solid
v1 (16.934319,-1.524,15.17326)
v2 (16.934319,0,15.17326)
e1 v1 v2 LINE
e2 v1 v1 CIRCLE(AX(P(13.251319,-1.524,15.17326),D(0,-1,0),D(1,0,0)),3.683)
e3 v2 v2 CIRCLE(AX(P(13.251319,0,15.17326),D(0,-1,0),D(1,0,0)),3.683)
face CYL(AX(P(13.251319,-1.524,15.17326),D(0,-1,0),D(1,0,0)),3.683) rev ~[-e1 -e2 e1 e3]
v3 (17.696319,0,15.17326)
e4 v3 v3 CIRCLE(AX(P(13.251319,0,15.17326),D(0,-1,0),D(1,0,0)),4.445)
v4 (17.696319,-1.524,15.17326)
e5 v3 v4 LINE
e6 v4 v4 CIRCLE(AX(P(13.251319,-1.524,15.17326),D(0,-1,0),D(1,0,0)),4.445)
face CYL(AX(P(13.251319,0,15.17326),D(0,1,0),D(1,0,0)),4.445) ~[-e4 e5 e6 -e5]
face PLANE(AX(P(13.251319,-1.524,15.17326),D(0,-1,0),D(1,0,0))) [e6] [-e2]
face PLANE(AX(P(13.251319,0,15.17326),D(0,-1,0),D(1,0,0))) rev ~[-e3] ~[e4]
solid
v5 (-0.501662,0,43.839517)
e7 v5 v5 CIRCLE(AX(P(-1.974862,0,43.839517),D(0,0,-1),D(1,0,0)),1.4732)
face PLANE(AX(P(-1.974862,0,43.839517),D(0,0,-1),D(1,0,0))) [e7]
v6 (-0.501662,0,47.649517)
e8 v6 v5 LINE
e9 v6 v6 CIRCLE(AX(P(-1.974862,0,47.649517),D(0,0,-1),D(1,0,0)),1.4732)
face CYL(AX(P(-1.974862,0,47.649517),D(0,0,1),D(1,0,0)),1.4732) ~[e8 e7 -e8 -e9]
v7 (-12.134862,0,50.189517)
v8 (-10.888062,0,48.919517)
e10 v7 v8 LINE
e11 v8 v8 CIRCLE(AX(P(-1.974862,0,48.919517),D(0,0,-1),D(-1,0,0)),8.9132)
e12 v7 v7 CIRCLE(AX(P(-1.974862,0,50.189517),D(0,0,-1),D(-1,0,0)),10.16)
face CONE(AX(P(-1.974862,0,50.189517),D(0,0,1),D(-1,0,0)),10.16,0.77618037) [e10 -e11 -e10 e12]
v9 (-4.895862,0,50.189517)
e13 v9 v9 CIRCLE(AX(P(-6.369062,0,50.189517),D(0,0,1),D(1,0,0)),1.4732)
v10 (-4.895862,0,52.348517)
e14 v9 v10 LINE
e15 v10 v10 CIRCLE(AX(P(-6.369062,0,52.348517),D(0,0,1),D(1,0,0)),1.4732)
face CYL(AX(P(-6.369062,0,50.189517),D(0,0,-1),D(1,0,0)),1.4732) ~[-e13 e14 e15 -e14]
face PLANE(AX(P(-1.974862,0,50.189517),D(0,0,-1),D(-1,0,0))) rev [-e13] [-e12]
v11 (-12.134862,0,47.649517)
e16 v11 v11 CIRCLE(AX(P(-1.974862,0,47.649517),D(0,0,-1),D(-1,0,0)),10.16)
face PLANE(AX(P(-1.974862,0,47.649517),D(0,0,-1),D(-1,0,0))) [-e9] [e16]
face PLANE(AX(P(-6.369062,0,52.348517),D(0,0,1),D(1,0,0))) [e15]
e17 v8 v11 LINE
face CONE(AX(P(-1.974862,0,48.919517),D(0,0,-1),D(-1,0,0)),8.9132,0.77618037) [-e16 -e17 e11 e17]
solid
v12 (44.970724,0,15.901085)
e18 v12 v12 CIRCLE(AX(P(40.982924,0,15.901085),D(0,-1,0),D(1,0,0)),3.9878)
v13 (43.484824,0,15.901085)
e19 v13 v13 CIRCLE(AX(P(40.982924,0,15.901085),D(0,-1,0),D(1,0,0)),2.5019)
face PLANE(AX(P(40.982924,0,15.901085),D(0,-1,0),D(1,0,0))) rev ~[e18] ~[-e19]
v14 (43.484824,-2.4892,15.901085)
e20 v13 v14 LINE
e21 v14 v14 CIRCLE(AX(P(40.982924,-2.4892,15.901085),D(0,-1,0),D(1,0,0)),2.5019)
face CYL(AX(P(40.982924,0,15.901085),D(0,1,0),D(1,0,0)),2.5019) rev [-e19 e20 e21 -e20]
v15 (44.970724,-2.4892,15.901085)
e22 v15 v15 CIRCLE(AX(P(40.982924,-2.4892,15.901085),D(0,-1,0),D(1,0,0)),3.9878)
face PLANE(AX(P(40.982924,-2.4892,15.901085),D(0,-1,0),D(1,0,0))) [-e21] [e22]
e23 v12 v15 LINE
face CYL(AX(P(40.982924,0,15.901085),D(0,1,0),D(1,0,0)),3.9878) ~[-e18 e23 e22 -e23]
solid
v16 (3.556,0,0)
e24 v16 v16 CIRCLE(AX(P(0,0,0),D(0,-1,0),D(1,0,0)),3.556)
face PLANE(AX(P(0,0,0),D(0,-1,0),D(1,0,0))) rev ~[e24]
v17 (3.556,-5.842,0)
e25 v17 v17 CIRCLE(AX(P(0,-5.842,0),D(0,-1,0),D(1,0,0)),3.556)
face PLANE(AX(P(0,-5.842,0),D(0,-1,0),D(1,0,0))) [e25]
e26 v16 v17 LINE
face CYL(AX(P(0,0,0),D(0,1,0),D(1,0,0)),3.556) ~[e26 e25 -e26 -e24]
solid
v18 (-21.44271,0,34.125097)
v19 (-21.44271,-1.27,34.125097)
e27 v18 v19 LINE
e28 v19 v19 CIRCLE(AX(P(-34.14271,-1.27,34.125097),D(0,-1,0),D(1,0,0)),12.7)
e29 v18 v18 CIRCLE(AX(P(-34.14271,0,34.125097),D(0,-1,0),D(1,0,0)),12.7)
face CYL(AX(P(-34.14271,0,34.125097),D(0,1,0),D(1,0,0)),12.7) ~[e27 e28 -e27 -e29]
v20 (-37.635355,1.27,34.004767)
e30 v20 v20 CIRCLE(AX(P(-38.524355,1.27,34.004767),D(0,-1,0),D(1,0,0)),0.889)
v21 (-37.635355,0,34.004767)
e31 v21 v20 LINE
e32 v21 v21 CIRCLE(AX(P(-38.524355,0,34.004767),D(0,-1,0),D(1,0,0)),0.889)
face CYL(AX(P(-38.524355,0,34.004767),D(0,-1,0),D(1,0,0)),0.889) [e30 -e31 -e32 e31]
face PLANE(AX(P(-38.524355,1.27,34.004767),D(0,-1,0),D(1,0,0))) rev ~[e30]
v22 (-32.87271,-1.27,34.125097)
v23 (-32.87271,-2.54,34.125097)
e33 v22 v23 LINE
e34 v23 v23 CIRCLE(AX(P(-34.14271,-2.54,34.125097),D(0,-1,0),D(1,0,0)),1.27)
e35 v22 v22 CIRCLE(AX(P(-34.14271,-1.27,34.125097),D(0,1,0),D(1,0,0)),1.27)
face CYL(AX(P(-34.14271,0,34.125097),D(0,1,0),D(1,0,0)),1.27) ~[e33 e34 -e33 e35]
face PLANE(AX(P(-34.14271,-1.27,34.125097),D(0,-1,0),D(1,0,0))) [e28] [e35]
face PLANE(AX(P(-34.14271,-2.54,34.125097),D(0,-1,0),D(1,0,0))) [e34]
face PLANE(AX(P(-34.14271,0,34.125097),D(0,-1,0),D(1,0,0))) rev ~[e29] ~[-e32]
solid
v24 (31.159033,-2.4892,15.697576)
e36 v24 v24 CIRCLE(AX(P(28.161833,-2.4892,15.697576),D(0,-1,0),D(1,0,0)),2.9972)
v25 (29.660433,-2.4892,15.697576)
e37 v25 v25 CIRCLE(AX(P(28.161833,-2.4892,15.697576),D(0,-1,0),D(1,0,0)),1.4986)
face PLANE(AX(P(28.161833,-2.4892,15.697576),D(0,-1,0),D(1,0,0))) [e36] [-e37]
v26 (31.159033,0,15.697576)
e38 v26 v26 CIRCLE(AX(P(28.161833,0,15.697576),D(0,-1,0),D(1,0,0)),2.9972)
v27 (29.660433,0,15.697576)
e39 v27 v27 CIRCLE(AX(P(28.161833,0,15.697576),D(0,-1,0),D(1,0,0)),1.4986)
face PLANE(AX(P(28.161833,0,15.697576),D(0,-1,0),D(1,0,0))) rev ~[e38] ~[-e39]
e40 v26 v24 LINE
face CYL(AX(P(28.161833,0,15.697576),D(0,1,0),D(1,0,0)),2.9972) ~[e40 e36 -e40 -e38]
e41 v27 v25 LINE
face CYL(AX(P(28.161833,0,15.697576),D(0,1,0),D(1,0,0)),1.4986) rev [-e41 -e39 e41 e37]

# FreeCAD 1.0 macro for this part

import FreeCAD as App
import Part
import Sketcher

V = App.Vector
Q = App.Units.Quantity

doc = App.newDocument("Part")
params = doc.addObject("Spreadsheet::Sheet", "Params")
for row, (alias, value) in enumerate([
    ("sketch1_diameter", "0.28 in"),
    ("pad1_length", "0.23 in"),
    ("sketch2_diameter", "0.35 in"),
    ("pad2_length", "0.06 in"),
    ("sketch3_diameter", "0.29 in"),
    ("pocket1_length", "1 in"),
    ("sketch4_diameter", "1 in"),
    ("pad3_length", "0.05 in"),
    ("sketch5_diameter", "0.07 in"),
    ("pad4_length", "0.05 in"),
    ("sketch6_diameter", "0.1 in"),
    ("pad5_length", "0.1 in"),
    ("sketch7_width", "0.4 in"),
    ("sketch7_height", "0.1 in"),
    ("revolution_angle", "360 deg"),
    ("sketch8_diameter", "0.116 in"),
    ("pad6_length", "0.085 in"),
    ("sketch9_diameter", "0.116 in"),
    ("pad7_length", "0.15 in"),
    ("sketch10_diameter", "0.236 in"),
    ("sketch10_diameter2", "0.118 in"),
    ("sketch10_diameter3", "0.314 in"),
    ("sketch10_diameter4", "0.197 in"),
    ("pad8_length", "0.098 in"),
], start=1):
    params.set(f"A{row}", alias)
    params.set(f"B{row}", "=" + value)
    params.setAlias(f"B{row}", alias)

body = doc.addObject("PartDesign::Body", "Body")

# Sketch on XZ plane
sketch1 = body.newObject("Sketcher::SketchObject", "Sketch")
sketch1.AttachmentSupport = (doc.getObject("XZ_Plane"), [""])
sketch1.MapMode = "FlatFace"
sketch1.addGeometry(Part.Circle(V(0, 0, 0), V(0, 0, 1), 3.6), False)
sketch1.addConstraint(Sketcher.Constraint("Coincident", 0, 3, -1, 1))
sketch1.addConstraint(Sketcher.Constraint("Diameter", 0, Q("0.28 in")))
sketch1.setExpression("Constraints[1]", "Params.sketch1_diameter")
pad1 = body.newObject("PartDesign::Pad", "Pad")
pad1.Profile = sketch1
pad1.setExpression("Length", "Params.pad1_length")
body2 = doc.addObject("PartDesign::Body", "Body001")

# Sketch on XZ plane
sketch2 = body2.newObject("Sketcher::SketchObject", "Sketch001")
sketch2.AttachmentSupport = (doc.getObject("XZ_Plane001"), [""])
sketch2.MapMode = "FlatFace"
sketch2.addGeometry(Part.Circle(V(13.3, 15.2, 0), V(0, 0, 1), 4.4), False)
sketch2.addConstraint(Sketcher.Constraint("Diameter", 0, Q("0.35 in")))
sketch2.addConstraint(Sketcher.Constraint("DistanceX", -1, 1, 0, 3, 13.251319))
sketch2.addConstraint(Sketcher.Constraint("DistanceY", -1, 1, 0, 3, 15.17326))
sketch2.setExpression("Constraints[0]", "Params.sketch2_diameter")
pad2 = body2.newObject("PartDesign::Pad", "Pad001")
pad2.Profile = sketch2
pad2.setExpression("Length", "Params.pad2_length")

# Sketch on XZ plane
sketch3 = body2.newObject("Sketcher::SketchObject", "Sketch002")
sketch3.AttachmentSupport = (doc.getObject("XZ_Plane001"), [""])
sketch3.MapMode = "FlatFace"
sketch3.AttachmentOffset = App.Placement(V(0, 0, 0.06 * 25.4), App.Rotation())
sketch3.addGeometry(Part.Circle(V(13.3, 15.2, 0), V(0, 0, 1), 3.7), False)
sketch3.addConstraint(Sketcher.Constraint("Diameter", 0, Q("0.29 in")))
sketch3.addConstraint(Sketcher.Constraint("DistanceX", -1, 1, 0, 3, 13.251319))
sketch3.addConstraint(Sketcher.Constraint("DistanceY", -1, 1, 0, 3, 15.17326))
sketch3.setExpression("Constraints[0]", "Params.sketch3_diameter")
pocket1 = body2.newObject("PartDesign::Pocket", "Pocket")
pocket1.Profile = sketch3
pocket1.setExpression("Length", "Params.pocket1_length")
body3 = doc.addObject("PartDesign::Body", "Body002")

# Sketch on XZ plane
sketch4 = body3.newObject("Sketcher::SketchObject", "Sketch003")
sketch4.AttachmentSupport = (doc.getObject("XZ_Plane002"), [""])
sketch4.MapMode = "FlatFace"
sketch4.addGeometry(Part.Circle(V(-34, 34, 0), V(0, 0, 1), 13), False)
sketch4.addConstraint(Sketcher.Constraint("Diameter", 0, Q("1 in")))
sketch4.addConstraint(Sketcher.Constraint("DistanceX", 0, 3, -1, 1, 34.14271))
sketch4.addConstraint(Sketcher.Constraint("DistanceY", -1, 1, 0, 3, 34.125097))
sketch4.setExpression("Constraints[0]", "Params.sketch4_diameter")
pad3 = body3.newObject("PartDesign::Pad", "Pad002")
pad3.Profile = sketch4
pad3.setExpression("Length", "Params.pad3_length")

# Sketch on XZ plane
sketch5 = body3.newObject("Sketcher::SketchObject", "Sketch004")
sketch5.AttachmentSupport = (doc.getObject("XZ_Plane002"), [""])
sketch5.MapMode = "FlatFace"
sketch5.addGeometry(Part.Circle(V(-38.5, 34, 0), V(0, 0, 1), 0.9), False)
sketch5.addConstraint(Sketcher.Constraint("Diameter", 0, Q("0.07 in")))
sketch5.addConstraint(Sketcher.Constraint("DistanceX", 0, 3, -1, 1, 38.524355))
sketch5.addConstraint(Sketcher.Constraint("DistanceY", -1, 1, 0, 3, 34.004767))
sketch5.setExpression("Constraints[0]", "Params.sketch5_diameter")
pad4 = body3.newObject("PartDesign::Pad", "Pad003")
pad4.Profile = sketch5
pad4.setExpression("Length", "Params.pad4_length")
pad4.Reversed = True

# Sketch on XZ plane
sketch6 = body3.newObject("Sketcher::SketchObject", "Sketch005")
sketch6.AttachmentSupport = (doc.getObject("XZ_Plane002"), [""])
sketch6.MapMode = "FlatFace"
sketch6.addGeometry(Part.Circle(V(-34.1, 34.1, 0), V(0, 0, 1), 1.3), False)
sketch6.addConstraint(Sketcher.Constraint("Diameter", 0, Q("0.1 in")))
sketch6.addConstraint(Sketcher.Constraint("DistanceX", 0, 3, -1, 1, 34.14271))
sketch6.addConstraint(Sketcher.Constraint("DistanceY", -1, 1, 0, 3, 34.125097))
sketch6.setExpression("Constraints[0]", "Params.sketch6_diameter")
pad5 = body3.newObject("PartDesign::Pad", "Pad004")
pad5.Profile = sketch6
pad5.setExpression("Length", "Params.pad5_length")
body4 = doc.addObject("PartDesign::Body", "Body003")

# Sketch on XZ plane
sketch7 = body4.newObject("Sketcher::SketchObject", "Sketch006")
sketch7.AttachmentSupport = (doc.getObject("XZ_Plane003"), [""])
sketch7.MapMode = "FlatFace"
sketch7.addGeometry(Part.LineSegment(V(-2, 50.2, 0), V(-12.1, 50.2, 0)), False)
sketch7.addGeometry(Part.LineSegment(V(-12.1, 50.2, 0), V(-10.9, 48.9, 0)), False)
sketch7.addGeometry(Part.LineSegment(V(-10.9, 48.9, 0), V(-12.1, 47.6, 0)), False)
sketch7.addGeometry(Part.LineSegment(V(-12.1, 47.6, 0), V(-2, 47.6, 0)), False)
sketch7.addGeometry(Part.LineSegment(V(-2, 47.6, 0), V(-2, 50.2, 0)), False)
sketch7.addGeometry(Part.LineSegment(V(-2, 50.2, 0), V(-2, 47.6, 0)), True)  # axis
sketch7.addConstraint(Sketcher.Constraint("Coincident", 0, 2, 1, 1))
sketch7.addConstraint(Sketcher.Constraint("Coincident", 1, 2, 2, 1))
sketch7.addConstraint(Sketcher.Constraint("Coincident", 2, 2, 3, 1))
sketch7.addConstraint(Sketcher.Constraint("Coincident", 3, 2, 4, 1))
sketch7.addConstraint(Sketcher.Constraint("Coincident", 4, 2, 0, 1))
sketch7.addConstraint(Sketcher.Constraint("Horizontal", 0))
sketch7.addConstraint(Sketcher.Constraint("Horizontal", 3))
sketch7.addConstraint(Sketcher.Constraint("Vertical", 4))
sketch7.addConstraint(Sketcher.Constraint("Vertical", 5))
sketch7.addConstraint(Sketcher.Constraint("Coincident", 5, 1, 4, 2))
sketch7.addConstraint(Sketcher.Constraint("Horizontal", 2, 2, 5, 2))
sketch7.addConstraint(Sketcher.Constraint("Vertical", 0, 2, 2, 2))
sketch7.addConstraint(Sketcher.Constraint("Equal", 1, 2))
sketch7.addConstraint(Sketcher.Constraint("DistanceX", 0, 2, 0, 1, Q("0.4 in")))
sketch7.addConstraint(Sketcher.Constraint("DistanceY", 4, 1, 4, 2, Q("0.1 in")))
sketch7.addConstraint(Sketcher.Constraint("DistanceX", 0, 2, 1, 2, 1.2468))
sketch7.addConstraint(Sketcher.Constraint("DistanceX", 3, 2, -1, 1, 1.974862))
sketch7.addConstraint(Sketcher.Constraint("DistanceY", -1, 1, 0, 2, 50.189517))
sketch7.setExpression("Constraints[13]", "Params.sketch7_width")
sketch7.setExpression("Constraints[14]", "Params.sketch7_height")
revolution = body4.newObject("PartDesign::Revolution", "Revolution")
revolution.Profile = sketch7
revolution.ReferenceAxis = (sketch7, ["Axis0"])
revolution.setExpression("Angle", "Params.revolution_angle")

# Sketch on XY plane
sketch8 = body4.newObject("Sketcher::SketchObject", "Sketch007")
sketch8.AttachmentSupport = (doc.getObject("XY_Plane003"), [""])
sketch8.MapMode = "FlatFace"
sketch8.AttachmentOffset = App.Placement(V(0, 0, 50.189517), App.Rotation())
sketch8.addGeometry(Part.Circle(V(-6.4, 0, 0), V(0, 0, 1), 1.5), False)
sketch8.addConstraint(Sketcher.Constraint("PointOnObject", 0, 3, -1))
sketch8.addConstraint(Sketcher.Constraint("Diameter", 0, Q("0.116 in")))
sketch8.addConstraint(Sketcher.Constraint("DistanceX", 0, 3, -1, 1, 6.369062))
sketch8.setExpression("Constraints[1]", "Params.sketch8_diameter")
pad6 = body4.newObject("PartDesign::Pad", "Pad005")
pad6.Profile = sketch8
pad6.setExpression("Length", "Params.pad6_length")

# Sketch on XY plane
sketch9 = body4.newObject("Sketcher::SketchObject", "Sketch008")
sketch9.AttachmentSupport = (doc.getObject("XY_Plane003"), [""])
sketch9.MapMode = "FlatFace"
sketch9.AttachmentOffset = App.Placement(V(0, 0, 47.649517), App.Rotation())
sketch9.addGeometry(Part.Circle(V(-2, 0, 0), V(0, 0, 1), 1.5), False)
sketch9.addConstraint(Sketcher.Constraint("PointOnObject", 0, 3, -1))
sketch9.addConstraint(Sketcher.Constraint("Diameter", 0, Q("0.116 in")))
sketch9.addConstraint(Sketcher.Constraint("DistanceX", 0, 3, -1, 1, 1.974862))
sketch9.setExpression("Constraints[1]", "Params.sketch9_diameter")
pad7 = body4.newObject("PartDesign::Pad", "Pad006")
pad7.Profile = sketch9
pad7.setExpression("Length", "Params.pad7_length")
pad7.Reversed = True
body5 = doc.addObject("PartDesign::Body", "Body004")
body5.AllowCompound = True

# Sketch on XZ plane
sketch10 = body5.newObject("Sketcher::SketchObject", "Sketch009")
sketch10.AttachmentSupport = (doc.getObject("XZ_Plane004"), [""])
sketch10.MapMode = "FlatFace"
sketch10.addGeometry(Part.Circle(V(28.2, 15.7, 0), V(0, 0, 1), 3), False)
sketch10.addGeometry(Part.Circle(V(28.2, 15.7, 0), V(0, 0, 1), 1.5), False)
sketch10.addGeometry(Part.Circle(V(41, 15.9, 0), V(0, 0, 1), 4), False)
sketch10.addGeometry(Part.Circle(V(41, 15.9, 0), V(0, 0, 1), 2.5), False)
sketch10.addConstraint(Sketcher.Constraint("Coincident", 1, 3, 0, 3))
sketch10.addConstraint(Sketcher.Constraint("Coincident", 3, 3, 2, 3))
sketch10.addConstraint(Sketcher.Constraint("Diameter", 0, Q("0.236 in")))
sketch10.addConstraint(Sketcher.Constraint("Diameter", 1, Q("0.118 in")))
sketch10.addConstraint(Sketcher.Constraint("Diameter", 2, Q("0.314 in")))
sketch10.addConstraint(Sketcher.Constraint("Diameter", 3, Q("0.197 in")))
sketch10.addConstraint(Sketcher.Constraint("DistanceX", 0, 3, 2, 3, 12.821091))
sketch10.addConstraint(Sketcher.Constraint("DistanceY", 0, 3, 2, 3, 0.203509))
sketch10.addConstraint(Sketcher.Constraint("DistanceX", -1, 1, 0, 3, 28.161833))
sketch10.addConstraint(Sketcher.Constraint("DistanceY", -1, 1, 0, 3, 15.697576))
sketch10.setExpression("Constraints[2]", "Params.sketch10_diameter")
sketch10.setExpression("Constraints[3]", "Params.sketch10_diameter2")
sketch10.setExpression("Constraints[4]", "Params.sketch10_diameter3")
sketch10.setExpression("Constraints[5]", "Params.sketch10_diameter4")
pad8 = body5.newObject("PartDesign::Pad", "Pad007")
pad8.Profile = sketch10
pad8.setExpression("Length", "Params.pad8_length")

doc.recompute()
